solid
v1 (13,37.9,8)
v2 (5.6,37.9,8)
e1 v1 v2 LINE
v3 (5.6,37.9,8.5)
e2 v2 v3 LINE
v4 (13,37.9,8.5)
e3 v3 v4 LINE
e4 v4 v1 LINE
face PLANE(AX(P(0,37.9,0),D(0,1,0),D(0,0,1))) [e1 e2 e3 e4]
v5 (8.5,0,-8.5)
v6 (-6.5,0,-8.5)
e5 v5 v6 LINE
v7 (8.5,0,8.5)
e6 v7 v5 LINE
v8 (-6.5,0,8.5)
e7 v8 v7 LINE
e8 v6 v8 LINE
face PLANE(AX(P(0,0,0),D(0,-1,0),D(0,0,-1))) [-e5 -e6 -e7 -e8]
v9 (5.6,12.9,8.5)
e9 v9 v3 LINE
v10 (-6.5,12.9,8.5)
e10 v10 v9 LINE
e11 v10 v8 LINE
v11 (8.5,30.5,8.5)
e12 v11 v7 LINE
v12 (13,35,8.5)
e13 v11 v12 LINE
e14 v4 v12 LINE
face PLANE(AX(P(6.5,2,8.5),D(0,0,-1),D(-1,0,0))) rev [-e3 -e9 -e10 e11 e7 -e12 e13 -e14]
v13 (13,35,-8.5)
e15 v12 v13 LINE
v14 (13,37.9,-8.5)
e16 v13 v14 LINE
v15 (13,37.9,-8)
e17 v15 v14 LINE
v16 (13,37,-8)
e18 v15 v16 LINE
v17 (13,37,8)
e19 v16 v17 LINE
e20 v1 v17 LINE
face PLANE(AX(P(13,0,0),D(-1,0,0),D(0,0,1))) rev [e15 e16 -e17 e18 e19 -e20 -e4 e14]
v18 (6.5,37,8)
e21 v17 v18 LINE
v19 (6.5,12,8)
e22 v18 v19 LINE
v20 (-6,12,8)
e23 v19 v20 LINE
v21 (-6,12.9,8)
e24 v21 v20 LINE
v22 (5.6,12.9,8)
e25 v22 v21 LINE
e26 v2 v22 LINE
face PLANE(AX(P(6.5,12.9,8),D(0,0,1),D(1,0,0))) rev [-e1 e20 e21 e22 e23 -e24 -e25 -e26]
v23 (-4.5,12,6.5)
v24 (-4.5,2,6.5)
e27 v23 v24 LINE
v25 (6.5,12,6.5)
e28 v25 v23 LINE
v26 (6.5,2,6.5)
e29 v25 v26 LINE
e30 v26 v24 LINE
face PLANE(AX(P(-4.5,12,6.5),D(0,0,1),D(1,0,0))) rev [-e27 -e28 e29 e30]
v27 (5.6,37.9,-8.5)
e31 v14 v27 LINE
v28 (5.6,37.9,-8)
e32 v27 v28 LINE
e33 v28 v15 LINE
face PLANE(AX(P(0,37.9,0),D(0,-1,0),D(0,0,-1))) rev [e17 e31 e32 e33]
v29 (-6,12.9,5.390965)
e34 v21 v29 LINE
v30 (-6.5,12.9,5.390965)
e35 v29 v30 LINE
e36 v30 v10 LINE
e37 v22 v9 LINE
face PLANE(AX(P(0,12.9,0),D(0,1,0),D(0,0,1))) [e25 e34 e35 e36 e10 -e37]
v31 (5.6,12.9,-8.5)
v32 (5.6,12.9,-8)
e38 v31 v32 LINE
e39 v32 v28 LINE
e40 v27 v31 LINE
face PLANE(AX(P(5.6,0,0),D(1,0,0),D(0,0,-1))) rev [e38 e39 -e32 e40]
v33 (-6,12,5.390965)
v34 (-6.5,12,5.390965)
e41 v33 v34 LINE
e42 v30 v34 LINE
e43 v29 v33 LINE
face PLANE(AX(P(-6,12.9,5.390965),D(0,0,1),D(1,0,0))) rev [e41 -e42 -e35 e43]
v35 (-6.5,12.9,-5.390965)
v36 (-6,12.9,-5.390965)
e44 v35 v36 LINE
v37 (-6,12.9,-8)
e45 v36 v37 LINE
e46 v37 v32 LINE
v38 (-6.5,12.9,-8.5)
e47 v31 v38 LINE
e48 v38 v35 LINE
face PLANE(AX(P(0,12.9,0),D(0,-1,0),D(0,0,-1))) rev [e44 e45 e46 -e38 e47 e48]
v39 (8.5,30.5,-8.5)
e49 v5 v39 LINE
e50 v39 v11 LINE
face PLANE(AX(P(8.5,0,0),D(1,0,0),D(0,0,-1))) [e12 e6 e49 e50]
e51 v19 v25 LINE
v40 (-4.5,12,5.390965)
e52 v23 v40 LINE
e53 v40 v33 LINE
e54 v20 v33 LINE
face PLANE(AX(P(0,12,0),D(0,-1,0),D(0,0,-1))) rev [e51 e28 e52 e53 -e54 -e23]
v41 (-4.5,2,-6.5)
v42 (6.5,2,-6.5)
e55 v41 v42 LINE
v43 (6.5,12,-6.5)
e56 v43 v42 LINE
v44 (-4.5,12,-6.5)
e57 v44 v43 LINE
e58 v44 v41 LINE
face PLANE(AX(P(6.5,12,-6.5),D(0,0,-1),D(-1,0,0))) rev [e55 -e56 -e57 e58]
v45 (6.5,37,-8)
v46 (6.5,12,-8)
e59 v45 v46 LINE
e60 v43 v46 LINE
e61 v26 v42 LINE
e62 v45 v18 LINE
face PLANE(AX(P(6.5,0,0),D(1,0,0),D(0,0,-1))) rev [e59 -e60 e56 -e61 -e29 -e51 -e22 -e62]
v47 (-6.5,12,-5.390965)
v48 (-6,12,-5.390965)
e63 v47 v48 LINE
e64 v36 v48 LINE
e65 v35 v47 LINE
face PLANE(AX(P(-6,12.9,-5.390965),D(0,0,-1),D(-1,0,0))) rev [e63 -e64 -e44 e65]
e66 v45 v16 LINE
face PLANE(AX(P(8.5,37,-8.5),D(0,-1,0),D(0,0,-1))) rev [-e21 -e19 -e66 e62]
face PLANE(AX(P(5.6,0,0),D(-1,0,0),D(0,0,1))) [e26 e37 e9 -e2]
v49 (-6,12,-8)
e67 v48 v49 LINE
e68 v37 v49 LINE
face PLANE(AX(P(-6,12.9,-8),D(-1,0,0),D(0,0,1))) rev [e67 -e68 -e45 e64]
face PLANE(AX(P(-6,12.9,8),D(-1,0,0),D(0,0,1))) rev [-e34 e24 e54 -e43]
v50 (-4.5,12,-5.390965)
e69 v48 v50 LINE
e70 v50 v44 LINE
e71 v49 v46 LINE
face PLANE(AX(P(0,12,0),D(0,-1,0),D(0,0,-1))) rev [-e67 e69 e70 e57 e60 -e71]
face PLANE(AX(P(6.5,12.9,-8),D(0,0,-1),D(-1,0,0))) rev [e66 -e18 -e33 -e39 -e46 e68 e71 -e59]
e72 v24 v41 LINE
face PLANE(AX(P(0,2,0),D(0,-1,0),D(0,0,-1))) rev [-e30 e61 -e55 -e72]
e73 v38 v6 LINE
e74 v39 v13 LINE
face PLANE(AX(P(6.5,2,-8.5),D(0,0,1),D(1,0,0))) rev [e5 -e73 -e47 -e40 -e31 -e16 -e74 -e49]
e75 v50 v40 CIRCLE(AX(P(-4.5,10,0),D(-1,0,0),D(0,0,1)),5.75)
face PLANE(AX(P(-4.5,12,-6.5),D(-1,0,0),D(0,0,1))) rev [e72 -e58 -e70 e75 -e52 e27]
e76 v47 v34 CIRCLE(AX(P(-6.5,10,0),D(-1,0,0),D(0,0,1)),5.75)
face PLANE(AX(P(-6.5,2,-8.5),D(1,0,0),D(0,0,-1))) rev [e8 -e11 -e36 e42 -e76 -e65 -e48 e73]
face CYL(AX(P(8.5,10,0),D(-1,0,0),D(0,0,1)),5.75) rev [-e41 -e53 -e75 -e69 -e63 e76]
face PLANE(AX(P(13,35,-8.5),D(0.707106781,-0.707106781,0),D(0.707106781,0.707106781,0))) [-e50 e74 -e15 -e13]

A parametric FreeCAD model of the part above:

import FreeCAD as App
import Part
import Sketcher

doc = App.newDocument("Part")
body = doc.addObject("PartDesign::Body", "Body")

sketch1 = doc.addObject("Sketcher::SketchObject", "Sketch")
body.addObject(sketch1)
sketch1.AttachmentSupport = (doc.XZ_Plane, [""])
sketch1.MapMode = "FlatFace"
sketch1.addGeometry([
    Part.LineSegment(App.Vector(-6, -8, 0), App.Vector(-6, 8, 0)),
    Part.LineSegment(App.Vector(-6, 8, 0), App.Vector(6, 8, 0)),
    Part.LineSegment(App.Vector(6, 8, 0), App.Vector(6, -8, 0)),
    Part.LineSegment(App.Vector(6, -8, 0), App.Vector(-6, -8, 0)),
], False)
sketch1.addConstraint([
    Sketcher.Constraint("Coincident", 0, 2, 1, 1),
    Sketcher.Constraint("Coincident", 1, 2, 2, 1),
    Sketcher.Constraint("Coincident", 2, 2, 3, 1),
    Sketcher.Constraint("Coincident", 3, 2, 0, 1),
    Sketcher.Constraint("Vertical", 0),
    Sketcher.Constraint("Horizontal", 1),
    Sketcher.Constraint("Vertical", 2),
    Sketcher.Constraint("Horizontal", 3),
    Sketcher.Constraint("Symmetric", 0, 2, 2, 2, -1, 1),
    Sketcher.Constraint("DistanceX", 1, 1, 1, 2, 13.0),
    Sketcher.Constraint("DistanceY", 0, 1, 0, 2, 17.0),
])
pad1 = doc.addObject("PartDesign::Pad", "Pad")
body.addObject(pad1)
pad1.Profile = sketch1
pad1.Length = 2
pad1.Reversed = True

sketch2 = doc.addObject("Sketcher::SketchObject", "Sketch001")
body.addObject(sketch2)
sketch2.AttachmentSupport = (doc.XZ_Plane, [""])
sketch2.MapMode = "FlatFace"
sketch2.AttachmentOffset = App.Placement(App.Vector(0, 0, -2), App.Rotation())
sketch2.addGeometry([
    Part.LineSegment(App.Vector(-6.5, -8.5, 0), App.Vector(-6.5, 8.5, 0)),
    Part.LineSegment(App.Vector(-6.5, 8.5, 0), App.Vector(6.5, 8.5, 0)),
    Part.LineSegment(App.Vector(6.5, 8.5, 0), App.Vector(6.5, 6.5, 0)),
    Part.LineSegment(App.Vector(6.5, 6.5, 0), App.Vector(-4.5, 6.5, 0)),
    Part.LineSegment(App.Vector(-4.5, 6.5, 0), App.Vector(-4.5, -6.5, 0)),
    Part.LineSegment(App.Vector(-4.5, -6.5, 0), App.Vector(6.5, -6.5, 0)),
    Part.LineSegment(App.Vector(6.5, -6.5, 0), App.Vector(6.5, -8.5, 0)),
    Part.LineSegment(App.Vector(6.5, -8.5, 0), App.Vector(-6.5, -8.5, 0)),
], False)
sketch2.addConstraint([
    Sketcher.Constraint("Coincident", 0, 2, 1, 1),
    Sketcher.Constraint("Coincident", 1, 2, 2, 1),
    Sketcher.Constraint("Coincident", 2, 2, 3, 1),
    Sketcher.Constraint("Coincident", 3, 2, 4, 1),
    Sketcher.Constraint("Coincident", 4, 2, 5, 1),
    Sketcher.Constraint("Coincident", 5, 2, 6, 1),
    Sketcher.Constraint("Coincident", 6, 2, 7, 1),
    Sketcher.Constraint("Coincident", 7, 2, 0, 1),
    Sketcher.Constraint("Vertical", 0),
    Sketcher.Constraint("Horizontal", 1),
    Sketcher.Constraint("Vertical", 2),
    Sketcher.Constraint("Horizontal", 3),
    Sketcher.Constraint("Vertical", 4),
    Sketcher.Constraint("Horizontal", 5),
    Sketcher.Constraint("Vertical", 6),
    Sketcher.Constraint("Horizontal", 7),
    Sketcher.Constraint("Symmetric", 0, 2, 6, 2, -1, 1),
    Sketcher.Constraint("Symmetric", 2, 2, 5, 2, -1),
    Sketcher.Constraint("Equal", 7, 4),
    Sketcher.Constraint("DistanceX", 1, 1, 1, 2, 13.0),
    Sketcher.Constraint("DistanceX", 3, 2, 3, 1, 11.0),
    Sketcher.Constraint("DistanceY", 0, 1, 0, 2, 17.0),
])
pad2 = doc.addObject("PartDesign::Pad", "Pad001")
body.addObject(pad2)
pad2.Profile = sketch2
pad2.Length = 10
pad2.Reversed = True

sketch3 = doc.addObject("Sketcher::SketchObject", "Sketch002")
body.addObject(sketch3)
sketch3.AttachmentSupport = (doc.YZ_Plane, [""])
sketch3.MapMode = "FlatFace"
sketch3.AttachmentOffset = App.Placement(App.Vector(0, 0, -6.5), App.Rotation())
sketch3.addGeometry(Part.Circle(App.Vector(10, 0, 0), App.Vector(0, 0, 1), 6), False)
sketch3.addConstraint([
    Sketcher.Constraint("PointOnObject", 0, 3, -1),
    Sketcher.Constraint("Diameter", 0, 11.5),
    Sketcher.Constraint("DistanceX", -1, 1, 0, 3, 10.0),
])
pocket1 = doc.addObject("PartDesign::Pocket", "Pocket")
body.addObject(pocket1)
pocket1.Profile = sketch3
pocket1.Length = 15
pocket1.Reversed = True

sketch4 = doc.addObject("Sketcher::SketchObject", "Sketch003")
body.addObject(sketch4)
sketch4.AttachmentSupport = (doc.YZ_Plane, [""])
sketch4.MapMode = "FlatFace"
sketch4.AttachmentOffset = App.Placement(App.Vector(0, 0, 6.5), App.Rotation())
sketch4.addGeometry([
    Part.LineSegment(App.Vector(37, 8, 0), App.Vector(0, 8, 0)),
    Part.LineSegment(App.Vector(0, 8, 0), App.Vector(0, -8, 0)),
    Part.LineSegment(App.Vector(0, -8, 0), App.Vector(37, -8, 0)),
    Part.LineSegment(App.Vector(37, -8, 0), App.Vector(37, 8, 0)),
], False)
sketch4.addConstraint([
    Sketcher.Constraint("Coincident", 0, 2, 1, 1),
    Sketcher.Constraint("Coincident", 1, 2, 2, 1),
    Sketcher.Constraint("Coincident", 2, 2, 3, 1),
    Sketcher.Constraint("Coincident", 3, 2, 0, 1),
    Sketcher.Constraint("Horizontal", 0),
    Sketcher.Constraint("Vertical", 1),
    Sketcher.Constraint("Horizontal", 2),
    Sketcher.Constraint("Vertical", 3),
    Sketcher.Constraint("Symmetric", 0, 2, 1, 2, -1, 1),
    Sketcher.Constraint("DistanceX", 0, 2, 0, 1, 37.0),
    Sketcher.Constraint("DistanceY", 1, 2, 1, 1, 17.0),
])
pad3 = doc.addObject("PartDesign::Pad", "Pad002")
body.addObject(pad3)
pad3.Profile = sketch4
pad3.Length = 2

sketch5 = doc.addObject("Sketcher::SketchObject", "Sketch004")
body.addObject(sketch5)
sketch5.AttachmentSupport = (doc.YZ_Plane, [""])
sketch5.MapMode = "FlatFace"
sketch5.AttachmentOffset = App.Placement(App.Vector(0, 0, 8.5), App.Rotation())
sketch5.addGeometry([
    Part.LineSegment(App.Vector(37, 8.5, 0), App.Vector(35, 8.5, 0)),
    Part.LineSegment(App.Vector(35, 8.5, 0), App.Vector(35, -8.5, 0)),
    Part.LineSegment(App.Vector(35, -8.5, 0), App.Vector(37, -8.5, 0)),
    Part.LineSegment(App.Vector(37, -8.5, 0), App.Vector(37, 8.5, 0)),
], False)
sketch5.addConstraint([
    Sketcher.Constraint("Coincident", 0, 2, 1, 1),
    Sketcher.Constraint("Coincident", 1, 2, 2, 1),
    Sketcher.Constraint("Coincident", 2, 2, 3, 1),
    Sketcher.Constraint("Coincident", 3, 2, 0, 1),
    Sketcher.Constraint("Horizontal", 0),
    Sketcher.Constraint("Vertical", 1),
    Sketcher.Constraint("Horizontal", 2),
    Sketcher.Constraint("Vertical", 3),
    Sketcher.Constraint("DistanceX", 0, 2, 0, 1, 2.0),
    Sketcher.Constraint("DistanceY", 1, 2, 1, 1, 17.0),
    Sketcher.Constraint("DistanceX", -1, 1, 0, 2, 35.0),
    Sketcher.Constraint("DistanceY", -1, 1, 0, 2, 8.5),
])
pad4 = doc.addObject("PartDesign::Pad", "Pad003")
body.addObject(pad4)
pad4.Profile = sketch5
pad4.Length = 4.5

sketch6 = doc.addObject("Sketcher::SketchObject", "Sketch005")
body.addObject(sketch6)
sketch6.AttachmentSupport = (doc.XZ_Plane, [""])
sketch6.MapMode = "FlatFace"
sketch6.AttachmentOffset = App.Placement(App.Vector(0, 0, -12), App.Rotation())
sketch6.addGeometry([
    Part.LineSegment(App.Vector(-6.5, -5.4, 0), App.Vector(-6, -5.4, 0)),
    Part.LineSegment(App.Vector(-6, -5.4, 0), App.Vector(-6, -8, 0)),
    Part.LineSegment(App.Vector(-6, -8, 0), App.Vector(6.5, -8, 0)),
    Part.LineSegment(App.Vector(6.5, -8, 0), App.Vector(6.5, -8.5, 0)),
    Part.LineSegment(App.Vector(6.5, -8.5, 0), App.Vector(-6.5, -8.5, 0)),
    Part.LineSegment(App.Vector(-6.5, -8.5, 0), App.Vector(-6.5, -5.4, 0)),
    Part.LineSegment(App.Vector(6.5, 8, 0), App.Vector(-6, 8, 0)),
    Part.LineSegment(App.Vector(-6, 8, 0), App.Vector(-6, 5.4, 0)),
    Part.LineSegment(App.Vector(-6, 5.4, 0), App.Vector(-6.5, 5.4, 0)),
    Part.LineSegment(App.Vector(-6.5, 5.4, 0), App.Vector(-6.5, 8.5, 0)),
    Part.LineSegment(App.Vector(-6.5, 8.5, 0), App.Vector(6.5, 8.5, 0)),
    Part.LineSegment(App.Vector(6.5, 8.5, 0), App.Vector(6.5, 8, 0)),
], False)
sketch6.addConstraint([
    Sketcher.Constraint("Coincident", 0, 2, 1, 1),
    Sketcher.Constraint("Coincident", 1, 2, 2, 1),
    Sketcher.Constraint("Coincident", 2, 2, 3, 1),
    Sketcher.Constraint("Coincident", 3, 2, 4, 1),
    Sketcher.Constraint("Coincident", 4, 2, 5, 1),
    Sketcher.Constraint("Coincident", 5, 2, 0, 1),
    Sketcher.Constraint("Coincident", 6, 2, 7, 1),
    Sketcher.Constraint("Coincident", 7, 2, 8, 1),
    Sketcher.Constraint("Coincident", 8, 2, 9, 1),
    Sketcher.Constraint("Coincident", 9, 2, 10, 1),
    Sketcher.Constraint("Coincident", 10, 2, 11, 1),
    Sketcher.Constraint("Coincident", 11, 2, 6, 1),
    Sketcher.Constraint("Horizontal", 0),
    Sketcher.Constraint("Vertical", 1),
    Sketcher.Constraint("Horizontal", 2),
    Sketcher.Constraint("Vertical", 3),
    Sketcher.Constraint("Horizontal", 4),
    Sketcher.Constraint("Vertical", 5),
    Sketcher.Constraint("Horizontal", 6),
    Sketcher.Constraint("Vertical", 7),
    Sketcher.Constraint("Horizontal", 8),
    Sketcher.Constraint("Vertical", 9),
    Sketcher.Constraint("Horizontal", 10),
    Sketcher.Constraint("Vertical", 11),
    Sketcher.Constraint("Symmetric", 3, 2, 9, 2, -1, 1),
    Sketcher.Constraint("Symmetric", 1, 2, 6, 2, -1),
    Sketcher.Constraint("Symmetric", 5, 2, 8, 2, -1),
    Sketcher.Constraint("Vertical", 3, 2, 10, 2),
    Sketcher.Constraint("Equal", 8, 3),
    Sketcher.Constraint("DistanceX", 4, 2, 4, 1, 13.0),
    Sketcher.Constraint("DistanceX", 0, 1, 0, 2, 0.5),
    Sketcher.Constraint("DistanceY", 1, 2, -1, 1, 8.0),
    Sketcher.Constraint("DistanceY", 1, 2, 1, 1, 2.609035),
])
pad5 = doc.addObject("PartDesign::Pad", "Pad004")
body.addObject(pad5)
pad5.Profile = sketch6
pad5.Length = 0.9
pad5.Reversed = True

sketch7 = doc.addObject("Sketcher::SketchObject", "Sketch006")
body.addObject(sketch7)
sketch7.AttachmentSupport = (doc.YZ_Plane, [""])
sketch7.MapMode = "FlatFace"
sketch7.AttachmentOffset = App.Placement(App.Vector(0, 0, 6.5), App.Rotation())
sketch7.addGeometry([
    Part.LineSegment(App.Vector(37, -8.5, 0), App.Vector(12.9, -8.5, 0)),
    Part.LineSegment(App.Vector(12.9, -8.5, 0), App.Vector(12.9, -8, 0)),
    Part.LineSegment(App.Vector(12.9, -8, 0), App.Vector(37, -8, 0)),
    Part.LineSegment(App.Vector(37, -8, 0), App.Vector(37, -8.5, 0)),
    Part.LineSegment(App.Vector(37, 8, 0), App.Vector(12.9, 8, 0)),
    Part.LineSegment(App.Vector(12.9, 8, 0), App.Vector(12.9, 8.5, 0)),
    Part.LineSegment(App.Vector(12.9, 8.5, 0), App.Vector(37, 8.5, 0)),
    Part.LineSegment(App.Vector(37, 8.5, 0), App.Vector(37, 8, 0)),
], False)
sketch7.addConstraint([
    Sketcher.Constraint("Coincident", 0, 2, 1, 1),
    Sketcher.Constraint("Coincident", 1, 2, 2, 1),
    Sketcher.Constraint("Coincident", 2, 2, 3, 1),
    Sketcher.Constraint("Coincident", 3, 2, 0, 1),
    Sketcher.Constraint("Coincident", 4, 2, 5, 1),
    Sketcher.Constraint("Coincident", 5, 2, 6, 1),
    Sketcher.Constraint("Coincident", 6, 2, 7, 1),
    Sketcher.Constraint("Coincident", 7, 2, 4, 1),
    Sketcher.Constraint("Horizontal", 0),
    Sketcher.Constraint("Vertical", 1),
    Sketcher.Constraint("Horizontal", 2),
    Sketcher.Constraint("Vertical", 3),
    Sketcher.Constraint("Horizontal", 4),
    Sketcher.Constraint("Vertical", 5),
    Sketcher.Constraint("Horizontal", 6),
    Sketcher.Constraint("Vertical", 7),
    Sketcher.Constraint("Symmetric", 1, 2, 4, 2, -1),
    Sketcher.Constraint("Symmetric", 3, 2, 6, 2, -1),
    Sketcher.Constraint("DistanceX", 0, 2, 0, 1, 24.1),
    Sketcher.Constraint("DistanceY", 1, 1, 1, 2, 0.5),
    Sketcher.Constraint("DistanceY", 1, 2, -1, 1, 8.0),
    Sketcher.Constraint("DistanceX", -1, 1, 2, 2, 37.0),
])
pad6 = doc.addObject("PartDesign::Pad", "Pad005")
body.addObject(pad6)
pad6.Profile = sketch7
pad6.Length = 0.9
pad6.Reversed = True

sketch8 = doc.addObject("Sketcher::SketchObject", "Sketch007")
body.addObject(sketch8)
sketch8.AttachmentSupport = (doc.XZ_Plane, [""])
sketch8.MapMode = "FlatFace"
sketch8.AttachmentOffset = App.Placement(App.Vector(0, 0, -37), App.Rotation())
sketch8.addGeometry([
    Part.LineSegment(App.Vector(5.6, -8.5, 0), App.Vector(5.6, -8, 0)),
    Part.LineSegment(App.Vector(5.6, -8, 0), App.Vector(13, -8, 0)),
    Part.LineSegment(App.Vector(13, -8, 0), App.Vector(13, -8.5, 0)),
    Part.LineSegment(App.Vector(13, -8.5, 0), App.Vector(5.6, -8.5, 0)),
    Part.LineSegment(App.Vector(5.6, 8, 0), App.Vector(5.6, 8.5, 0)),
    Part.LineSegment(App.Vector(5.6, 8.5, 0), App.Vector(13, 8.5, 0)),
    Part.LineSegment(App.Vector(13, 8.5, 0), App.Vector(13, 8, 0)),
    Part.LineSegment(App.Vector(13, 8, 0), App.Vector(5.6, 8, 0)),
], False)
sketch8.addConstraint([
    Sketcher.Constraint("Coincident", 0, 2, 1, 1),
    Sketcher.Constraint("Coincident", 1, 2, 2, 1),
    Sketcher.Constraint("Coincident", 2, 2, 3, 1),
    Sketcher.Constraint("Coincident", 3, 2, 0, 1),
    Sketcher.Constraint("Coincident", 4, 2, 5, 1),
    Sketcher.Constraint("Coincident", 5, 2, 6, 1),
    Sketcher.Constraint("Coincident", 6, 2, 7, 1),
    Sketcher.Constraint("Coincident", 7, 2, 4, 1),
    Sketcher.Constraint("Vertical", 0),
    Sketcher.Constraint("Horizontal", 1),
    Sketcher.Constraint("Vertical", 2),
    Sketcher.Constraint("Horizontal", 3),
    Sketcher.Constraint("Vertical", 4),
    Sketcher.Constraint("Horizontal", 5),
    Sketcher.Constraint("Vertical", 6),
    Sketcher.Constraint("Horizontal", 7),
    Sketcher.Constraint("Symmetric", 3, 2, 4, 2, -1),
    Sketcher.Constraint("Symmetric", 1, 2, 6, 2, -1),
    Sketcher.Constraint("DistanceX", 1, 1, 1, 2, 7.4),
    Sketcher.Constraint("DistanceY", 0, 1, 0, 2, 0.5),
    Sketcher.Constraint("DistanceY", 0, 2, -1, 1, 8.0),
    Sketcher.Constraint("DistanceX", -1, 1, 1, 2, 13.0),
])
pad7 = doc.addObject("PartDesign::Pad", "Pad006")
body.addObject(pad7)
pad7.Profile = sketch8
pad7.Length = 0.9
pad7.Reversed = True

sketch9 = doc.addObject("Sketcher::SketchObject", "Sketch008")
body.addObject(sketch9)
sketch9.AttachmentSupport = (doc.XY_Plane, [""])
sketch9.MapMode = "FlatFace"
sketch9.AttachmentOffset = App.Placement(App.Vector(0, 0, 8.5), App.Rotation())
sketch9.addGeometry([
    Part.LineSegment(App.Vector(8.5, 30.5, 0), App.Vector(13, 35, 0)),
    Part.LineSegment(App.Vector(13, 35, 0), App.Vector(8.5, 35, 0)),
    Part.LineSegment(App.Vector(8.5, 35, 0), App.Vector(8.5, 30.5, 0)),
], False)
sketch9.addConstraint([
    Sketcher.Constraint("Coincident", 0, 2, 1, 1),
    Sketcher.Constraint("Coincident", 1, 2, 2, 1),
    Sketcher.Constraint("Coincident", 2, 2, 0, 1),
    Sketcher.Constraint("Horizontal", 1),
    Sketcher.Constraint("Vertical", 2),
    Sketcher.Constraint("Equal", 1, 2),
    Sketcher.Constraint("DistanceX", 1, 2, 1, 1, 4.5),
    Sketcher.Constraint("DistanceX", -1, 1, 0, 2, 13.0),
    Sketcher.Constraint("DistanceY", -1, 1, 0, 2, 35.0),
])
pad8 = doc.addObject("PartDesign::Pad", "Pad007")
body.addObject(pad8)
pad8.Profile = sketch9
pad8.Length = 17
pad8.Reversed = True

doc.recompute()
